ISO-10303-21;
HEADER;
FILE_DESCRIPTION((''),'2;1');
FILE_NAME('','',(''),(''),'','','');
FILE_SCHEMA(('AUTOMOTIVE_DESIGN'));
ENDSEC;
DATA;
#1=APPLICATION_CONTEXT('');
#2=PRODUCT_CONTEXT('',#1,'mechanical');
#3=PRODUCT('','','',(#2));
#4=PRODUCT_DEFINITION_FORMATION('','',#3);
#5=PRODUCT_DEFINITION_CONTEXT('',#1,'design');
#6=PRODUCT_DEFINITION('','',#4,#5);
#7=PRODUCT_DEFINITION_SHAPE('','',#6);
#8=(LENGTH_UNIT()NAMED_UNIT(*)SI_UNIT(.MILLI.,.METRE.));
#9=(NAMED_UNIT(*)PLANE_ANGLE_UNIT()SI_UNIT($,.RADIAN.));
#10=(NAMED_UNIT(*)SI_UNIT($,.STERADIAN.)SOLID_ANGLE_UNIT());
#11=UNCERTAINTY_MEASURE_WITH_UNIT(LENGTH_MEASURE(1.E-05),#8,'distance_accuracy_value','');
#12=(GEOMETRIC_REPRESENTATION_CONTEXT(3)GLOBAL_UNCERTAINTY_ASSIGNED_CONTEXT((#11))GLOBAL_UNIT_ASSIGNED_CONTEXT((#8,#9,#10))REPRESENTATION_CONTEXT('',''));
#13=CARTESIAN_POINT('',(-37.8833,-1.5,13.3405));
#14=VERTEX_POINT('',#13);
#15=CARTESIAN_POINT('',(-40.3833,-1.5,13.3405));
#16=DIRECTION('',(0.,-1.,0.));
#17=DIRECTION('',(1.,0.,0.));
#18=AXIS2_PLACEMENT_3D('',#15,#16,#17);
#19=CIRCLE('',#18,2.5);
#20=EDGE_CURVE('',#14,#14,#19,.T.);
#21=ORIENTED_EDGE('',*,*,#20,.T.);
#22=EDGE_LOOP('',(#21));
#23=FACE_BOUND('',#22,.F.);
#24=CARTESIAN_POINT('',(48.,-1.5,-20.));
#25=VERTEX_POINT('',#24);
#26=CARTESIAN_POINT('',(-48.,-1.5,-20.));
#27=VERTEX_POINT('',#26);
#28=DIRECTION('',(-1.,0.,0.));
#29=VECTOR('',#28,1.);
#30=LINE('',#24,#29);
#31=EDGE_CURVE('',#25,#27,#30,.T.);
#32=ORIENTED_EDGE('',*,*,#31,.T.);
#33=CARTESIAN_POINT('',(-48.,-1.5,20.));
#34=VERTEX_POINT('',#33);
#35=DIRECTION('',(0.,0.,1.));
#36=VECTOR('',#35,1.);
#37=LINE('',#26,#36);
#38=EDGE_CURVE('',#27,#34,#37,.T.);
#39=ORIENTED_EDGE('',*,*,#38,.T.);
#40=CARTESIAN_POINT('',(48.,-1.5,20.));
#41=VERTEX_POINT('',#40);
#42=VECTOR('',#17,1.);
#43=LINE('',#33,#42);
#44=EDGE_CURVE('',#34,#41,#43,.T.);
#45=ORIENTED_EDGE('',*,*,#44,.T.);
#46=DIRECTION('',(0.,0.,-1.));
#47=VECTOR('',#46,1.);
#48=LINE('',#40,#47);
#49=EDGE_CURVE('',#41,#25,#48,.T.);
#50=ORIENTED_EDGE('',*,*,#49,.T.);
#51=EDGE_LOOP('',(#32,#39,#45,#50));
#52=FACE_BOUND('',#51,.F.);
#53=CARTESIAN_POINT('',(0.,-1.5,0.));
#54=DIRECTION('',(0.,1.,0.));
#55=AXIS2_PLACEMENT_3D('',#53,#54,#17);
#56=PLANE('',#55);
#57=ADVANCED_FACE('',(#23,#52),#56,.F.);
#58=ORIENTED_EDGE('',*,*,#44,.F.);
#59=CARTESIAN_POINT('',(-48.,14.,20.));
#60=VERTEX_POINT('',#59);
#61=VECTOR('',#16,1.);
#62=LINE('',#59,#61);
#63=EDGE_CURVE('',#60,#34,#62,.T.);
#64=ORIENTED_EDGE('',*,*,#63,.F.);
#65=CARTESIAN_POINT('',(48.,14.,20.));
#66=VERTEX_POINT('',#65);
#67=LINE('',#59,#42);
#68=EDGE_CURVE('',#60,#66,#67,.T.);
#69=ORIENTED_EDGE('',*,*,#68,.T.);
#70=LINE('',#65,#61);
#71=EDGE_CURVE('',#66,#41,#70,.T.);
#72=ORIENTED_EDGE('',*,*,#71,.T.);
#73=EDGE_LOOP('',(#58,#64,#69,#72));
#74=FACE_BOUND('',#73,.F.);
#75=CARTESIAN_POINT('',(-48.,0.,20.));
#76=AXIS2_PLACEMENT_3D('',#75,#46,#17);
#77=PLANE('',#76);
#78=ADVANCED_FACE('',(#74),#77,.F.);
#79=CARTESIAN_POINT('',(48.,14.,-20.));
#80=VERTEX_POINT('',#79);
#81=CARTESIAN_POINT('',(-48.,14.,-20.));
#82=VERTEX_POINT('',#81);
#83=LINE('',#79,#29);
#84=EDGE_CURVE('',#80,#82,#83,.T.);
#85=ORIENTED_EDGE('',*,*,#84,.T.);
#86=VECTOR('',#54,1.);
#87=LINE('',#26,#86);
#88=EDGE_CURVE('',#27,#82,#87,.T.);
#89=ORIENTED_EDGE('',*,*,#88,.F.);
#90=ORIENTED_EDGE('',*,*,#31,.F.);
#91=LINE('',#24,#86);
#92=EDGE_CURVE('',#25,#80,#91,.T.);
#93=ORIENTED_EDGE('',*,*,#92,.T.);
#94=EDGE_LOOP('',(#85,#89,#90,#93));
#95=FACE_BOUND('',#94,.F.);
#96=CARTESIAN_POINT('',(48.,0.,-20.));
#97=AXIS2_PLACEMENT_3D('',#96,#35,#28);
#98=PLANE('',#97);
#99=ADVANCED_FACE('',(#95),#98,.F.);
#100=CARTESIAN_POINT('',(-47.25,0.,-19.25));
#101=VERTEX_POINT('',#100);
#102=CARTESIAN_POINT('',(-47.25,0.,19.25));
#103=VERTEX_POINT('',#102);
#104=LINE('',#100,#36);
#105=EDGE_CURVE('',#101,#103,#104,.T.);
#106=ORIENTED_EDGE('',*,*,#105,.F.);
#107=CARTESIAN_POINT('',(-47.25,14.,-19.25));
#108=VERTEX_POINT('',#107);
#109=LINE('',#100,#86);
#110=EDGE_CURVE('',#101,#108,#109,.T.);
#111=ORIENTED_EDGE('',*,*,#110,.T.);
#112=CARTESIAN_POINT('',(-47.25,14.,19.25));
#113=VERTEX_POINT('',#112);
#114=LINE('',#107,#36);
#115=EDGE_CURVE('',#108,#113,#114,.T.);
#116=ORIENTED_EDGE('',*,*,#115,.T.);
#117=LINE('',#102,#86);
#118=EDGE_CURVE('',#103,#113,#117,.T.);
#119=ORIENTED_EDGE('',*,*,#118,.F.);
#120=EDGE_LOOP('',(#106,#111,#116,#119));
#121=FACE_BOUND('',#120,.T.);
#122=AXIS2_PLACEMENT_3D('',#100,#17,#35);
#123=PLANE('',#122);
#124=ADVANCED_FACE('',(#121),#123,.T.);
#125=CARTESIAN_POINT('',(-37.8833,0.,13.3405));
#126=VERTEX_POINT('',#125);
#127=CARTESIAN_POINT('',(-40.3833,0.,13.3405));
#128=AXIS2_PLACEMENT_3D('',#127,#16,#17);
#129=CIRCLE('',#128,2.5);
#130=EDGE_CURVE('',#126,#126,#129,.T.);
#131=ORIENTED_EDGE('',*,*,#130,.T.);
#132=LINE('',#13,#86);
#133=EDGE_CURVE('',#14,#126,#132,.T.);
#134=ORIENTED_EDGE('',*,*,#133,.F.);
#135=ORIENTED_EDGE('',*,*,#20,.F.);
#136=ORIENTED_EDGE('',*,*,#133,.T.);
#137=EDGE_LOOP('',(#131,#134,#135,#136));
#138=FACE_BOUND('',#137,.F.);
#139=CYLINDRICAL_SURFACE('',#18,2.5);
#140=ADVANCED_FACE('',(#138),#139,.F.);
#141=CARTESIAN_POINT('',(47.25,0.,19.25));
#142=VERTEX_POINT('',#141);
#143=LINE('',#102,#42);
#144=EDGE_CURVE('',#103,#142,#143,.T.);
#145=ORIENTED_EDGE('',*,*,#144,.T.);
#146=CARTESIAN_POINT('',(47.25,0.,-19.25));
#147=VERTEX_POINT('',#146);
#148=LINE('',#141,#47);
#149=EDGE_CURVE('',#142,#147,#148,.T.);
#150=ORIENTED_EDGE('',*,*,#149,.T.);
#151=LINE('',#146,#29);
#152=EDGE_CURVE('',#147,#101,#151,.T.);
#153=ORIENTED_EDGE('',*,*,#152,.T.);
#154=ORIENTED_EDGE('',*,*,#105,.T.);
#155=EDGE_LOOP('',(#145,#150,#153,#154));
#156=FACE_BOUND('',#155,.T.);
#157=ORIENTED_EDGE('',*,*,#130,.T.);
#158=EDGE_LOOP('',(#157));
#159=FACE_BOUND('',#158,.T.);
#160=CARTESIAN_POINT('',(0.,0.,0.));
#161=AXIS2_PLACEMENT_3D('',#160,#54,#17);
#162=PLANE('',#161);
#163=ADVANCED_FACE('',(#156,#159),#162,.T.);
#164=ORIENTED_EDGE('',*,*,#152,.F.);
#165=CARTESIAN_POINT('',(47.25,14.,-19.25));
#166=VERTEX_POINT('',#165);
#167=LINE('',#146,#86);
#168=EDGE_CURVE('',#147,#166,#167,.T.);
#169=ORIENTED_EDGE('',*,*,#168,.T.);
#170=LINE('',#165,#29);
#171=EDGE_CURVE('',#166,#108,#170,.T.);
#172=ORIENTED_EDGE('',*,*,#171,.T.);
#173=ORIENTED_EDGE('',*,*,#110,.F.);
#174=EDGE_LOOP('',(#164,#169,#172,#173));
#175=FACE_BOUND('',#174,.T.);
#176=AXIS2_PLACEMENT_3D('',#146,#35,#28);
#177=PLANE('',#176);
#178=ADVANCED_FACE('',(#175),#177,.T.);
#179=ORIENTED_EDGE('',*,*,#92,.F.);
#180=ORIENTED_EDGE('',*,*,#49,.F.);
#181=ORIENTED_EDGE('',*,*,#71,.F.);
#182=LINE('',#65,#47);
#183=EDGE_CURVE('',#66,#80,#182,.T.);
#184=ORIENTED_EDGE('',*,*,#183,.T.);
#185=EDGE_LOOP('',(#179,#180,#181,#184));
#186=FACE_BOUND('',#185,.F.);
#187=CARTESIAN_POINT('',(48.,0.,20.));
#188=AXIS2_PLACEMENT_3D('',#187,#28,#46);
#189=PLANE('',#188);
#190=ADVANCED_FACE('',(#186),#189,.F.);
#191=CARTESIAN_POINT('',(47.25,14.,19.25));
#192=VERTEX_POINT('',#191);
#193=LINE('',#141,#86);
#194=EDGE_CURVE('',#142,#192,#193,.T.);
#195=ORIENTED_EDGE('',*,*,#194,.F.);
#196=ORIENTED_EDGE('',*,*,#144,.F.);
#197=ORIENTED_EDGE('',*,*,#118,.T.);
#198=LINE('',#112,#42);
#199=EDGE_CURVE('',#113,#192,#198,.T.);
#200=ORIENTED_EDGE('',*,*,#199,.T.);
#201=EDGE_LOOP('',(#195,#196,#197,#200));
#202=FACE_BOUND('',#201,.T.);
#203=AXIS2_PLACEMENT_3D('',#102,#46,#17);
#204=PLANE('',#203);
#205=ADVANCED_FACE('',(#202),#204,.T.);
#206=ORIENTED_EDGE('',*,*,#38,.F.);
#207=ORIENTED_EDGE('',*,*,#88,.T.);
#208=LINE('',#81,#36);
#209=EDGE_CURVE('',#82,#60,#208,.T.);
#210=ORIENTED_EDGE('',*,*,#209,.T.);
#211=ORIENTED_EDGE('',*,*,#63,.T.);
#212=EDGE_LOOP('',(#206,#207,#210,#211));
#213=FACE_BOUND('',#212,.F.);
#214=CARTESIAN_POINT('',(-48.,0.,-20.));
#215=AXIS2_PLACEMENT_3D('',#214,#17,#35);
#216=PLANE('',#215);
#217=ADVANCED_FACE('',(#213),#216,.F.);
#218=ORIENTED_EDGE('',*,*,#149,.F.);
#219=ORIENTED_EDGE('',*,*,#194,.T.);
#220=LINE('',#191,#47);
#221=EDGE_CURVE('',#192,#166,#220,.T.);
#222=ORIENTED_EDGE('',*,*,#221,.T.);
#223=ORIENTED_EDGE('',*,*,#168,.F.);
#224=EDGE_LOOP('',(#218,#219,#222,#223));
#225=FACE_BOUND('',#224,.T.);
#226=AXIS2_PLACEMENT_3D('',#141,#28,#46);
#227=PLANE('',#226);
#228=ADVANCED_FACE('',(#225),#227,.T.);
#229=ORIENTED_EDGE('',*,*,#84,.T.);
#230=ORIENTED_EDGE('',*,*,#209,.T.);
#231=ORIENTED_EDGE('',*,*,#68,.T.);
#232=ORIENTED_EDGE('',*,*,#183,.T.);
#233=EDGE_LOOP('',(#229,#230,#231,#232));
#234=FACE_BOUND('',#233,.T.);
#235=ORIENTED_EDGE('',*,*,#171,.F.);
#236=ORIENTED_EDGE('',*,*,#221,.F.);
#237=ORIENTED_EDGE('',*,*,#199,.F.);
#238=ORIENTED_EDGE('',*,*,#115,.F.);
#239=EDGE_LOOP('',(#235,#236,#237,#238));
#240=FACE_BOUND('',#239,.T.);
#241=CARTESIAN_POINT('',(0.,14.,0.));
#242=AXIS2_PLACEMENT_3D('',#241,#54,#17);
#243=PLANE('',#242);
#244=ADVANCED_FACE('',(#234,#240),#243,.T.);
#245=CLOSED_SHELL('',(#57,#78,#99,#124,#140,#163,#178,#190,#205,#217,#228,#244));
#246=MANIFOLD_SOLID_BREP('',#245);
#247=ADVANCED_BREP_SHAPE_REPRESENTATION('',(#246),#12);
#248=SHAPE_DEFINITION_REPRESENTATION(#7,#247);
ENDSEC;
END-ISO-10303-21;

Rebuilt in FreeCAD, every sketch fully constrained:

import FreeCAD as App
import Part
import Sketcher
from FreeCAD import Vector
Q = App.Units.Quantity


def add_polygon(sketch, points):
    """Adds a closed chain of lines whose ends are joined by coincident constraints."""
    first, n = sketch.GeometryCount, len(points)
    for a, b in zip(points, points[1:] + points[:1]):
        sketch.addGeometry(Part.LineSegment(App.Vector(*a, 0), App.Vector(*b, 0)), False)
    for i in range(n):
        sketch.addConstraint(Sketcher.Constraint("Coincident", first + i, 2, first + (i + 1) % n, 1))

doc = App.newDocument("Part")
params = doc.addObject("Spreadsheet::Sheet", "Params")
for row, (alias, value) in enumerate([
    ("sketch1_width", "96 mm"),
    ("sketch1_height", "40 mm"),
    ("sketch1_width2", "94.5 mm"),
    ("sketch1_height2", "38.5 mm"),
    ("pad1_length", "14 mm"),
    ("sketch2_width", "96 mm"),
    ("sketch2_height", "40 mm"),
    ("pad2_length", "1.5 mm"),
    ("sketch3_diameter", "5 mm"),
    ("pocket1_length", "2.918 mm"),
], start=1):
    params.set(f"A{row}", alias)
    params.set(f"B{row}", "=" + value)
    params.setAlias(f"B{row}", alias)

body = doc.addObject("PartDesign::Body", "Body")

# Sketch on XZ plane
sketch1 = body.newObject("Sketcher::SketchObject", "Sketch")
sketch1.AttachmentSupport = (doc.getObject("XZ_Plane"), [""])
sketch1.MapMode = "FlatFace"
add_polygon(sketch1, [(48, 20), (48, -20), (-48, -20), (-48, 20)])  # lines 0-3
add_polygon(sketch1, [(-47, -19), (47, -19), (47, 19), (-47, 19)])  # lines 4-7
sketch1.addConstraint([
    Sketcher.Constraint("Vertical", 0),
    Sketcher.Constraint("Horizontal", 1),
    Sketcher.Constraint("Vertical", 2),
    Sketcher.Constraint("Horizontal", 3),
    Sketcher.Constraint("Horizontal", 4),
    Sketcher.Constraint("Vertical", 5),
    Sketcher.Constraint("Horizontal", 6),
    Sketcher.Constraint("Vertical", 7),
    Sketcher.Constraint("Symmetric", 0, 2, 2, 2, -1, 1),
    Sketcher.Constraint("Symmetric", 4, 2, 6, 2, -1, 1),
    Sketcher.Constraint("DistanceX", 1, 2, 1, 1, Q("96 mm")),
    Sketcher.Constraint("DistanceY", 0, 2, 0, 1, Q("40 mm")),
    Sketcher.Constraint("DistanceX", 4, 1, 4, 2, Q("94.5 mm")),
    Sketcher.Constraint("DistanceY", 5, 1, 5, 2, Q("38.5 mm")),
])
sketch1.setExpression("Constraints[18]", "Params.sketch1_width")
sketch1.setExpression("Constraints[19]", "Params.sketch1_height")
sketch1.setExpression("Constraints[20]", "Params.sketch1_width2")
sketch1.setExpression("Constraints[21]", "Params.sketch1_height2")
pad1 = body.newObject("PartDesign::Pad", "Pad")
pad1.Profile = sketch1
pad1.setExpression("Length", "Params.pad1_length")
pad1.Reversed = True

# Sketch on XZ plane
sketch2 = body.newObject("Sketcher::SketchObject", "Sketch001")
sketch2.AttachmentSupport = (doc.getObject("XZ_Plane"), [""])
sketch2.MapMode = "FlatFace"
add_polygon(sketch2, [(-48, -20), (-48, 20), (48, 20), (48, -20)])  # lines 0-3
sketch2.addConstraint([
    Sketcher.Constraint("Vertical", 0),
    Sketcher.Constraint("Horizontal", 1),
    Sketcher.Constraint("Vertical", 2),
    Sketcher.Constraint("Horizontal", 3),
    Sketcher.Constraint("Symmetric", 0, 2, 2, 2, -1, 1),
    Sketcher.Constraint("DistanceX", 1, 1, 1, 2, Q("96 mm")),
    Sketcher.Constraint("DistanceY", 0, 1, 0, 2, Q("40 mm")),
])
sketch2.setExpression("Constraints[9]", "Params.sketch2_width")
sketch2.setExpression("Constraints[10]", "Params.sketch2_height")
pad2 = body.newObject("PartDesign::Pad", "Pad001")
pad2.Profile = sketch2
pad2.setExpression("Length", "Params.pad2_length")

# Sketch on XZ plane
sketch3 = body.newObject("Sketcher::SketchObject", "Sketch002")
sketch3.AttachmentSupport = (doc.getObject("XZ_Plane"), [""])
sketch3.MapMode = "FlatFace"
sketch3.AttachmentOffset = App.Placement(Vector(0, 0, 1.5), App.Rotation())
sketch3.addGeometry(Part.Circle(Vector(-40.4, 13.3, 0), Vector(0, 0, 1), 2.5), False)
sketch3.addConstraint([
    Sketcher.Constraint("Diameter", 0, Q("5 mm")),
    Sketcher.Constraint("DistanceX", 0, 3, -1, 1, Q("40.3833 mm")),
    Sketcher.Constraint("DistanceY", -1, 1, 0, 3, Q("13.3405 mm")),
])
sketch3.setExpression("Constraints[0]", "Params.sketch3_diameter")
pocket1 = body.newObject("PartDesign::Pocket", "Pocket")
pocket1.Profile = sketch3
pocket1.setExpression("Length", "Params.pocket1_length")

doc.recompute()
